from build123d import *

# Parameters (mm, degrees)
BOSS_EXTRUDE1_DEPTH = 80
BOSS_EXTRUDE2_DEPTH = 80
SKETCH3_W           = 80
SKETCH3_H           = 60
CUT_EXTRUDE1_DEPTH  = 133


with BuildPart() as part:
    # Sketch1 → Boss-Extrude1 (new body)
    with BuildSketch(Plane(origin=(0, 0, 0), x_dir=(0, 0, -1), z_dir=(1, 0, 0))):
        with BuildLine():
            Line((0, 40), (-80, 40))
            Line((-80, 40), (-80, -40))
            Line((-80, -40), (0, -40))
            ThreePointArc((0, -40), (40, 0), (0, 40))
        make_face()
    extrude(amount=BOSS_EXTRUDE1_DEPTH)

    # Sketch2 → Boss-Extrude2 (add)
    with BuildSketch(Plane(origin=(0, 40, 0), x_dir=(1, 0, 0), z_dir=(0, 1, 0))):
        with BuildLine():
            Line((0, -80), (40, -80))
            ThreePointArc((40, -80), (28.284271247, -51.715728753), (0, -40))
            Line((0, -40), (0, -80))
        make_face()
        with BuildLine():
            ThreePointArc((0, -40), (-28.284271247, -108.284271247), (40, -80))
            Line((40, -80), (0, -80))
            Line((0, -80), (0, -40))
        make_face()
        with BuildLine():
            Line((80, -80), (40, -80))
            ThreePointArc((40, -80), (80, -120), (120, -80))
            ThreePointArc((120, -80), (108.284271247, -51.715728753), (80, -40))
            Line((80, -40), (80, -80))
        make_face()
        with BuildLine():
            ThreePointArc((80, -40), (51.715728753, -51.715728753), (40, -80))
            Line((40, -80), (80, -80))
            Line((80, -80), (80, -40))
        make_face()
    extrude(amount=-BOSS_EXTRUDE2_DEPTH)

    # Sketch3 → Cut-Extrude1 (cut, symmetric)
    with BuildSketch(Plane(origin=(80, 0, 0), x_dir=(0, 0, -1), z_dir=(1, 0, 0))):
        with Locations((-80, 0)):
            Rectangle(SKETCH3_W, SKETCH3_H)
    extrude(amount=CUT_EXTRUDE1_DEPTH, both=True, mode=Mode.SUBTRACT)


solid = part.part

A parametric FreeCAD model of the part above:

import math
import FreeCAD as App
import Part
import Sketcher
from FreeCAD import Vector


def add_polygon(sketch, points):
    """Adds a closed chain of lines whose ends are joined by coincident constraints."""
    first, n = sketch.GeometryCount, len(points)
    for a, b in zip(points, points[1:] + points[:1]):
        sketch.addGeometry(Part.LineSegment(App.Vector(*a, 0), App.Vector(*b, 0)), False)
    for i in range(n):
        sketch.addConstraint(Sketcher.Constraint("Coincident", first + i, 2, first + (i + 1) % n, 1))

doc = App.newDocument("Part")
body = doc.addObject("PartDesign::Body", "Body")

# Sketch on YZ plane
sketch1 = doc.addObject("Sketcher::SketchObject", "Sketch")
body.addObject(sketch1)
sketch1.AttachmentSupport = (doc.YZ_Plane, [""])
sketch1.MapMode = "FlatFace"
sketch1.addGeometry(Part.LineSegment(Vector(40, 0, 0), Vector(40, 80, 0)), False)
sketch1.addGeometry(Part.LineSegment(Vector(40, 80, 0), Vector(-40, 80, 0)), False)
sketch1.addGeometry(Part.LineSegment(Vector(-40, 80, 0), Vector(-40, 0, 0)), False)
sketch1.addGeometry(Part.ArcOfCircle(Part.Circle(Vector(0, 0, 0), Vector(0, 0, 1), 40), math.radians(180), math.radians(360)), False)
sketch1.addConstraint(Sketcher.Constraint("Coincident", 0, 2, 1, 1))
sketch1.addConstraint(Sketcher.Constraint("Coincident", 1, 2, 2, 1))
sketch1.addConstraint(Sketcher.Constraint("Tangent", 2, 2, 3, 1))
sketch1.addConstraint(Sketcher.Constraint("Tangent", 3, 2, 0, 1))
sketch1.addConstraint(Sketcher.Constraint("Vertical", 0))
sketch1.addConstraint(Sketcher.Constraint("Horizontal", 1))
sketch1.addConstraint(Sketcher.Constraint("Vertical", 2))
sketch1.addConstraint(Sketcher.Constraint("Coincident", 3, 3, -1, 1))
sketch1.addConstraint(Sketcher.Constraint("Equal", 1, 0))
sketch1.addConstraint(Sketcher.Constraint("Radius", 3, 40.0))
pad1 = doc.addObject("PartDesign::Pad", "Pad")
body.addObject(pad1)
pad1.Profile = sketch1
pad1.Length = 80

# Sketch on XZ plane
sketch2 = doc.addObject("Sketcher::SketchObject", "Sketch001")
body.addObject(sketch2)
sketch2.AttachmentSupport = (doc.XZ_Plane, [""])
sketch2.MapMode = "FlatFace"
sketch2.AttachmentOffset = App.Placement(Vector(0, 0, -40), App.Rotation())
sketch2.addGeometry(Part.ArcOfCircle(Part.Circle(Vector(0, 80, 0), Vector(0, 0, 1), 40), math.radians(-90), math.radians(0)), False)
sketch2.addGeometry(Part.ArcOfCircle(Part.Circle(Vector(0, 80, 0), Vector(0, 0, 1), 40), math.radians(0), math.radians(270)), False)
sketch2.addGeometry(Part.ArcOfCircle(Part.Circle(Vector(80, 80, 0), Vector(0, 0, 1), 40), math.radians(0), math.radians(180)), False)
sketch2.addGeometry(Part.ArcOfCircle(Part.Circle(Vector(80, 80, 0), Vector(0, 0, 1), 40), math.radians(-90), math.radians(0)), False)
sketch2.addGeometry(Part.ArcOfCircle(Part.Circle(Vector(80, 80, 0), Vector(0, 0, 1), 40), math.radians(-180), math.radians(-90)), False)
sketch2.addConstraint(Sketcher.Constraint("Tangent", 0, 1, 1, 2))
sketch2.addConstraint(Sketcher.Constraint("Coincident", 1, 1, 0, 2))
sketch2.addConstraint(Sketcher.Constraint("Tangent", 2, 1, 3, 2))
sketch2.addConstraint(Sketcher.Constraint("Tangent", 3, 1, 4, 2))
sketch2.addConstraint(Sketcher.Constraint("Tangent", 4, 1, 2, 2))
sketch2.addConstraint(Sketcher.Constraint("Coincident", 4, 1, 1, 1))
sketch2.addConstraint(Sketcher.Constraint("Equal", 1, 2))
sketch2.addConstraint(Sketcher.Constraint("PointOnObject", 0, 3, -2))
sketch2.addConstraint(Sketcher.Constraint("PointOnObject", 0, 1, -2))
sketch2.addConstraint(Sketcher.Constraint("Horizontal", 1, 3, 2, 3))
sketch2.addConstraint(Sketcher.Constraint("Horizontal", 4, 3, 1, 1))
sketch2.addConstraint(Sketcher.Constraint("Horizontal", 1, 1, 2, 1))
sketch2.addConstraint(Sketcher.Constraint("Vertical", 4, 3, 3, 1))
sketch2.addConstraint(Sketcher.Constraint("Radius", 0, 40.0))
sketch2.addConstraint(Sketcher.Constraint("DistanceY", -1, 1, 0, 3, 80.0))
pad2 = doc.addObject("PartDesign::Pad", "Pad001")
body.addObject(pad2)
pad2.Profile = sketch2
pad2.Length = 80

# Sketch on YZ plane
sketch3 = doc.addObject("Sketcher::SketchObject", "Sketch002")
body.addObject(sketch3)
sketch3.AttachmentSupport = (doc.YZ_Plane, [""])
sketch3.MapMode = "FlatFace"
sketch3.AttachmentOffset = App.Placement(Vector(0, 0, 80), App.Rotation())
add_polygon(sketch3, [(30, 120), (-30, 120), (-30, 40), (30, 40)])  # lines 0-3
sketch3.addConstraint(Sketcher.Constraint("Horizontal", 0))
sketch3.addConstraint(Sketcher.Constraint("Vertical", 1))
sketch3.addConstraint(Sketcher.Constraint("Horizontal", 2))
sketch3.addConstraint(Sketcher.Constraint("Vertical", 3))
sketch3.addConstraint(Sketcher.Constraint("DistanceX", 0, 2, 0, 1, 60.0))
sketch3.addConstraint(Sketcher.Constraint("DistanceY", 1, 2, 1, 1, 80.0))
sketch3.addConstraint(Sketcher.Constraint("DistanceX", 0, 2, -1, 1, 30.0))
sketch3.addConstraint(Sketcher.Constraint("DistanceY", -1, 1, 0, 2, 120.0))
pocket1 = doc.addObject("PartDesign::Pocket", "Pocket")
body.addObject(pocket1)
pocket1.Profile = sketch3
pocket1.Length = 266
pocket1.Midplane = True

doc.recompute()
